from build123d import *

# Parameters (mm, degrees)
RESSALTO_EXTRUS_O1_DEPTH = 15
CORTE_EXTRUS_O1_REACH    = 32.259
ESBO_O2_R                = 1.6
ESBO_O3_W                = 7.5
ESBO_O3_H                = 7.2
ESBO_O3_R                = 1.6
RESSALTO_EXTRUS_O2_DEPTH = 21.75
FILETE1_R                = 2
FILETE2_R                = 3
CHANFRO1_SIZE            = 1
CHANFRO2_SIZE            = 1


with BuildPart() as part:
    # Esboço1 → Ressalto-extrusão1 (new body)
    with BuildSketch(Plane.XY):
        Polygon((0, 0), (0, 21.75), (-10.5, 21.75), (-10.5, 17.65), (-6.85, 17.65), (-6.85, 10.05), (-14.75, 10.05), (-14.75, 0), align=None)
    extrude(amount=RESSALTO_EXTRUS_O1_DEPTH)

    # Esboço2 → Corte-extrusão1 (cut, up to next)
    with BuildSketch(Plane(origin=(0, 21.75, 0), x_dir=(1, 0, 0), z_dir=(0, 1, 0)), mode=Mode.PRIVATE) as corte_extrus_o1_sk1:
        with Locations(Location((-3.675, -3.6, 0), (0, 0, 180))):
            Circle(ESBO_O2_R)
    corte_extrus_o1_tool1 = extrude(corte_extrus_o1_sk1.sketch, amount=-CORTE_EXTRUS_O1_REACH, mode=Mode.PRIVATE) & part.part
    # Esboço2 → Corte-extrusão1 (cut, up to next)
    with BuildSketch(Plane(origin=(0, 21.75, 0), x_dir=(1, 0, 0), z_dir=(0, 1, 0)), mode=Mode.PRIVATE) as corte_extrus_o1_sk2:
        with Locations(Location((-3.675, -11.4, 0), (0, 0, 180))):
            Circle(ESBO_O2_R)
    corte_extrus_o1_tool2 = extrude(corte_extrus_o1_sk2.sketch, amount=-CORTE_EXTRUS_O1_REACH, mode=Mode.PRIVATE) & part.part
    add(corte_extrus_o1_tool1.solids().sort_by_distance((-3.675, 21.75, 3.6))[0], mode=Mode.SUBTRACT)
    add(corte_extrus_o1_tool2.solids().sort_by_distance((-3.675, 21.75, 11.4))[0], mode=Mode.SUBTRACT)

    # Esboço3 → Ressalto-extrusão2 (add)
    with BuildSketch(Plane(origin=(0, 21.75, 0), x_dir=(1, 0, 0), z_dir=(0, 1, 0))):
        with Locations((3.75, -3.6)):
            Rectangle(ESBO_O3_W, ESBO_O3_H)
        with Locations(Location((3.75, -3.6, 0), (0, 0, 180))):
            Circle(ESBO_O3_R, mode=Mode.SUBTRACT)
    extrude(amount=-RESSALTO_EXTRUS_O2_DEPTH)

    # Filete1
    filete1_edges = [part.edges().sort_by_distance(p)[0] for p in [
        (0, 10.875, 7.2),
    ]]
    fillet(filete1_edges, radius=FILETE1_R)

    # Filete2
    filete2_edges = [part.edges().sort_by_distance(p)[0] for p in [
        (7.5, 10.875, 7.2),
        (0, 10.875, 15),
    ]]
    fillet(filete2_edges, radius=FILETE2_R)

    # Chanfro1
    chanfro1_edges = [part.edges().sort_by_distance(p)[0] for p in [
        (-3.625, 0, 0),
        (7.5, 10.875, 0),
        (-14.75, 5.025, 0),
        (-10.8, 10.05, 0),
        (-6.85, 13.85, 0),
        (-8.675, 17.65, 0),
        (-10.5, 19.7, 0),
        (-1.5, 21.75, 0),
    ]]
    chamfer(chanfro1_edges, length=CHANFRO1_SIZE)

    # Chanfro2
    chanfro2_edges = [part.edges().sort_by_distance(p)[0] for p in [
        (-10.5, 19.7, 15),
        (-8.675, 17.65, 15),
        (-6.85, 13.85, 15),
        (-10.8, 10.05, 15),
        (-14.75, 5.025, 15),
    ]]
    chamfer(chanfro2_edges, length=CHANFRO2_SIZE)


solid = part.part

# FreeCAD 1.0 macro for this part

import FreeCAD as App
import Part
import Sketcher


def edges_at(feature, points):
    """Names of the edges that pass closest to the given points."""
    edges = feature.Shape.Edges
    near = lambda p: min(range(len(edges)), key=lambda i: edges[i].distToShape(Part.Vertex(*p))[0])
    return sorted({f"Edge{near(p) + 1}" for p in points})


def add_polygon(sketch, points):
    """Adds a closed chain of lines whose ends are joined by coincident constraints."""
    first, n = sketch.GeometryCount, len(points)
    for a, b in zip(points, points[1:] + points[:1]):
        sketch.addGeometry(Part.LineSegment(App.Vector(*a, 0), App.Vector(*b, 0)), False)
    for i in range(n):
        sketch.addConstraint(Sketcher.Constraint("Coincident", first + i, 2, first + (i + 1) % n, 1))

doc = App.newDocument("Part")
params = doc.addObject("Spreadsheet::Sheet", "Params")
for row, (alias, value) in enumerate([
    ("sketch1_width", "10.5 mm"),
    ("sketch1_width2", "7.9 mm"),
    ("sketch1_height", "4.1 mm"),
    ("sketch1_height2", "7.6 mm"),
    ("sketch1_width3", "3.65 mm"),
    ("pad1_length", "15 mm"),
    ("sketch2_diameter", "3.2 mm"),
    ("sketch3_diameter", "3.2 mm"),
    ("sketch4_diameter", "3.2 mm"),
    ("sketch4_width", "7.5 mm"),
    ("sketch4_height", "7.2 mm"),
    ("pad2_length", "21.75 mm"),
    ("fillet_radius", "2 mm"),
    ("fillet2_radius", "3 mm"),
    ("chamfer_size", "1 mm"),
    ("chamfer2_size", "1 mm"),
], start=1):
    params.set(f"A{row}", alias)
    params.set(f"B{row}", "=" + value)
    params.setAlias(f"B{row}", alias)

body = doc.addObject("PartDesign::Body", "Body")

# Sketch on XY plane
sketch1 = body.newObject("Sketcher::SketchObject", "Sketch")
sketch1.AttachmentSupport = (doc.getObject("XY_Plane"), [""])
sketch1.MapMode = "FlatFace"
add_polygon(sketch1, [(0, 0), (0, 21.8), (-10.5, 21.8), (-10.5, 17.6), (-6.8, 17.6), (-6.8, 10.1), (-14.8, 10.1), (-14.8, 0)])  # lines 0-7
sketch1.addConstraint([
    Sketcher.Constraint("Vertical", 0),
    Sketcher.Constraint("Horizontal", 1),
    Sketcher.Constraint("Vertical", 2),
    Sketcher.Constraint("Horizontal", 3),
    Sketcher.Constraint("Vertical", 4),
    Sketcher.Constraint("Horizontal", 5),
    Sketcher.Constraint("Vertical", 6),
    Sketcher.Constraint("Horizontal", 7),
    Sketcher.Constraint("Coincident", 7, 2, -1, 1),
    Sketcher.Constraint("DistanceX", 1, 2, 1, 1, 10.5),
    Sketcher.Constraint("DistanceX", 5, 2, 5, 1, 7.9),
    Sketcher.Constraint("DistanceY", 2, 2, 2, 1, 4.1),
    Sketcher.Constraint("DistanceY", 4, 2, 4, 1, 7.6),
    Sketcher.Constraint("DistanceX", 3, 1, 3, 2, 3.65),
    Sketcher.Constraint("DistanceY", 0, 1, 0, 2, 21.75),
])
sketch1.setExpression("Constraints[17]", "Params.sketch1_width")
sketch1.setExpression("Constraints[18]", "Params.sketch1_width2")
sketch1.setExpression("Constraints[19]", "Params.sketch1_height")
sketch1.setExpression("Constraints[20]", "Params.sketch1_height2")
sketch1.setExpression("Constraints[21]", "Params.sketch1_width3")
pad1 = body.newObject("PartDesign::Pad", "Pad")
pad1.Profile = sketch1
pad1.setExpression("Length", "Params.pad1_length")

# Sketch on XZ plane
sketch2 = body.newObject("Sketcher::SketchObject", "Sketch001")
sketch2.AttachmentSupport = (doc.getObject("XZ_Plane"), [""])
sketch2.MapMode = "FlatFace"
sketch2.AttachmentOffset = App.Placement(App.Vector(0, 0, -21.75), App.Rotation())
sketch2.addGeometry(Part.Circle(App.Vector(-3.7, 3.6, 0), App.Vector(0, 0, 1), 1.6), False)
sketch2.addConstraint([
    Sketcher.Constraint("Diameter", 0, 3.2),
    Sketcher.Constraint("DistanceY", -1, 1, 0, 3, 3.6),
    Sketcher.Constraint("DistanceX", 0, 3, -1, 1, 3.675),
])
sketch2.setExpression("Constraints[0]", "Params.sketch2_diameter")
pocket1 = body.newObject("PartDesign::Pocket", "Pocket")
pocket1.Profile = sketch2
pocket1.Type = "UpToFirst"
pocket1.Reversed = True

# Sketch on XZ plane
sketch3 = body.newObject("Sketcher::SketchObject", "Sketch002")
sketch3.AttachmentSupport = (doc.getObject("XZ_Plane"), [""])
sketch3.MapMode = "FlatFace"
sketch3.AttachmentOffset = App.Placement(App.Vector(0, 0, -21.75), App.Rotation())
sketch3.addGeometry(Part.Circle(App.Vector(-3.7, 11.4, 0), App.Vector(0, 0, 1), 1.6), False)
sketch3.addConstraint([
    Sketcher.Constraint("Diameter", 0, 3.2),
    Sketcher.Constraint("DistanceY", -1, 1, 0, 3, 11.4),
    Sketcher.Constraint("DistanceX", 0, 3, -1, 1, 3.675),
])
sketch3.setExpression("Constraints[0]", "Params.sketch3_diameter")
pocket2 = body.newObject("PartDesign::Pocket", "Pocket001")
pocket2.Profile = sketch3
pocket2.Type = "UpToFirst"
pocket2.Reversed = True

# Sketch on XZ plane
sketch4 = body.newObject("Sketcher::SketchObject", "Sketch003")
sketch4.AttachmentSupport = (doc.getObject("XZ_Plane"), [""])
sketch4.MapMode = "FlatFace"
sketch4.AttachmentOffset = App.Placement(App.Vector(0, 0, -21.75), App.Rotation())
add_polygon(sketch4, [(0, 0), (0, 7.2), (7.5, 7.2), (7.5, 0)])  # lines 0-3
sketch4.addGeometry(Part.Circle(App.Vector(3.8, 3.6, 0), App.Vector(0, 0, 1), 1.6), False)  # 4
sketch4.addConstraint([
    Sketcher.Constraint("Vertical", 0),
    Sketcher.Constraint("Horizontal", 1),
    Sketcher.Constraint("Vertical", 2),
    Sketcher.Constraint("Horizontal", 3),
    Sketcher.Constraint("Coincident", 3, 2, -1, 1),
    Sketcher.Constraint("Diameter", 4, 3.2),
    Sketcher.Constraint("DistanceX", 1, 1, 1, 2, 7.5),
    Sketcher.Constraint("DistanceY", 0, 1, 0, 2, 7.2),
    Sketcher.Constraint("DistanceY", -1, 1, 4, 3, 3.6),
    Sketcher.Constraint("DistanceX", -1, 1, 4, 3, 3.75),
])
sketch4.setExpression("Constraints[9]", "Params.sketch4_diameter")
sketch4.setExpression("Constraints[10]", "Params.sketch4_width")
sketch4.setExpression("Constraints[11]", "Params.sketch4_height")
pad2 = body.newObject("PartDesign::Pad", "Pad001")
pad2.Profile = sketch4
pad2.setExpression("Length", "Params.pad2_length")
doc.recompute()

fillet = body.newObject("PartDesign::Fillet", "Fillet")
fillet.Base = (pad2, edges_at(pad2, [(0, 10.875, 7.2)]))
fillet.setExpression("Radius", "Params.fillet_radius")
doc.recompute()

fillet2 = body.newObject("PartDesign::Fillet", "Fillet001")
fillet2.Base = (fillet, edges_at(fillet, [(7.5, 10.875, 7.2), (0, 10.875, 15)]))
fillet2.setExpression("Radius", "Params.fillet2_radius")
doc.recompute()

chamfer = body.newObject("PartDesign::Chamfer", "Chamfer")
chamfer.Base = (fillet2, edges_at(fillet2, [
    (-3.625, 0, 0),
    (7.5, 10.875, 0),
    (-14.75, 5.025, 0),
    (-10.8, 10.05, 0),
    (-6.85, 13.85, 0),
    (-8.675, 17.65, 0),
    (-10.5, 19.7, 0),
    (-1.5, 21.75, 0),
]))
chamfer.setExpression("Size", "Params.chamfer_size")
doc.recompute()

chamfer2 = body.newObject("PartDesign::Chamfer", "Chamfer001")
chamfer2.Base = (chamfer, edges_at(chamfer, [
    (-10.5, 19.7, 15),
    (-8.675, 17.65, 15),
    (-6.85, 13.85, 15),
    (-10.8, 10.05, 15),
    (-14.75, 5.025, 15),
]))
chamfer2.setExpression("Size", "Params.chamfer2_size")

doc.recompute()
